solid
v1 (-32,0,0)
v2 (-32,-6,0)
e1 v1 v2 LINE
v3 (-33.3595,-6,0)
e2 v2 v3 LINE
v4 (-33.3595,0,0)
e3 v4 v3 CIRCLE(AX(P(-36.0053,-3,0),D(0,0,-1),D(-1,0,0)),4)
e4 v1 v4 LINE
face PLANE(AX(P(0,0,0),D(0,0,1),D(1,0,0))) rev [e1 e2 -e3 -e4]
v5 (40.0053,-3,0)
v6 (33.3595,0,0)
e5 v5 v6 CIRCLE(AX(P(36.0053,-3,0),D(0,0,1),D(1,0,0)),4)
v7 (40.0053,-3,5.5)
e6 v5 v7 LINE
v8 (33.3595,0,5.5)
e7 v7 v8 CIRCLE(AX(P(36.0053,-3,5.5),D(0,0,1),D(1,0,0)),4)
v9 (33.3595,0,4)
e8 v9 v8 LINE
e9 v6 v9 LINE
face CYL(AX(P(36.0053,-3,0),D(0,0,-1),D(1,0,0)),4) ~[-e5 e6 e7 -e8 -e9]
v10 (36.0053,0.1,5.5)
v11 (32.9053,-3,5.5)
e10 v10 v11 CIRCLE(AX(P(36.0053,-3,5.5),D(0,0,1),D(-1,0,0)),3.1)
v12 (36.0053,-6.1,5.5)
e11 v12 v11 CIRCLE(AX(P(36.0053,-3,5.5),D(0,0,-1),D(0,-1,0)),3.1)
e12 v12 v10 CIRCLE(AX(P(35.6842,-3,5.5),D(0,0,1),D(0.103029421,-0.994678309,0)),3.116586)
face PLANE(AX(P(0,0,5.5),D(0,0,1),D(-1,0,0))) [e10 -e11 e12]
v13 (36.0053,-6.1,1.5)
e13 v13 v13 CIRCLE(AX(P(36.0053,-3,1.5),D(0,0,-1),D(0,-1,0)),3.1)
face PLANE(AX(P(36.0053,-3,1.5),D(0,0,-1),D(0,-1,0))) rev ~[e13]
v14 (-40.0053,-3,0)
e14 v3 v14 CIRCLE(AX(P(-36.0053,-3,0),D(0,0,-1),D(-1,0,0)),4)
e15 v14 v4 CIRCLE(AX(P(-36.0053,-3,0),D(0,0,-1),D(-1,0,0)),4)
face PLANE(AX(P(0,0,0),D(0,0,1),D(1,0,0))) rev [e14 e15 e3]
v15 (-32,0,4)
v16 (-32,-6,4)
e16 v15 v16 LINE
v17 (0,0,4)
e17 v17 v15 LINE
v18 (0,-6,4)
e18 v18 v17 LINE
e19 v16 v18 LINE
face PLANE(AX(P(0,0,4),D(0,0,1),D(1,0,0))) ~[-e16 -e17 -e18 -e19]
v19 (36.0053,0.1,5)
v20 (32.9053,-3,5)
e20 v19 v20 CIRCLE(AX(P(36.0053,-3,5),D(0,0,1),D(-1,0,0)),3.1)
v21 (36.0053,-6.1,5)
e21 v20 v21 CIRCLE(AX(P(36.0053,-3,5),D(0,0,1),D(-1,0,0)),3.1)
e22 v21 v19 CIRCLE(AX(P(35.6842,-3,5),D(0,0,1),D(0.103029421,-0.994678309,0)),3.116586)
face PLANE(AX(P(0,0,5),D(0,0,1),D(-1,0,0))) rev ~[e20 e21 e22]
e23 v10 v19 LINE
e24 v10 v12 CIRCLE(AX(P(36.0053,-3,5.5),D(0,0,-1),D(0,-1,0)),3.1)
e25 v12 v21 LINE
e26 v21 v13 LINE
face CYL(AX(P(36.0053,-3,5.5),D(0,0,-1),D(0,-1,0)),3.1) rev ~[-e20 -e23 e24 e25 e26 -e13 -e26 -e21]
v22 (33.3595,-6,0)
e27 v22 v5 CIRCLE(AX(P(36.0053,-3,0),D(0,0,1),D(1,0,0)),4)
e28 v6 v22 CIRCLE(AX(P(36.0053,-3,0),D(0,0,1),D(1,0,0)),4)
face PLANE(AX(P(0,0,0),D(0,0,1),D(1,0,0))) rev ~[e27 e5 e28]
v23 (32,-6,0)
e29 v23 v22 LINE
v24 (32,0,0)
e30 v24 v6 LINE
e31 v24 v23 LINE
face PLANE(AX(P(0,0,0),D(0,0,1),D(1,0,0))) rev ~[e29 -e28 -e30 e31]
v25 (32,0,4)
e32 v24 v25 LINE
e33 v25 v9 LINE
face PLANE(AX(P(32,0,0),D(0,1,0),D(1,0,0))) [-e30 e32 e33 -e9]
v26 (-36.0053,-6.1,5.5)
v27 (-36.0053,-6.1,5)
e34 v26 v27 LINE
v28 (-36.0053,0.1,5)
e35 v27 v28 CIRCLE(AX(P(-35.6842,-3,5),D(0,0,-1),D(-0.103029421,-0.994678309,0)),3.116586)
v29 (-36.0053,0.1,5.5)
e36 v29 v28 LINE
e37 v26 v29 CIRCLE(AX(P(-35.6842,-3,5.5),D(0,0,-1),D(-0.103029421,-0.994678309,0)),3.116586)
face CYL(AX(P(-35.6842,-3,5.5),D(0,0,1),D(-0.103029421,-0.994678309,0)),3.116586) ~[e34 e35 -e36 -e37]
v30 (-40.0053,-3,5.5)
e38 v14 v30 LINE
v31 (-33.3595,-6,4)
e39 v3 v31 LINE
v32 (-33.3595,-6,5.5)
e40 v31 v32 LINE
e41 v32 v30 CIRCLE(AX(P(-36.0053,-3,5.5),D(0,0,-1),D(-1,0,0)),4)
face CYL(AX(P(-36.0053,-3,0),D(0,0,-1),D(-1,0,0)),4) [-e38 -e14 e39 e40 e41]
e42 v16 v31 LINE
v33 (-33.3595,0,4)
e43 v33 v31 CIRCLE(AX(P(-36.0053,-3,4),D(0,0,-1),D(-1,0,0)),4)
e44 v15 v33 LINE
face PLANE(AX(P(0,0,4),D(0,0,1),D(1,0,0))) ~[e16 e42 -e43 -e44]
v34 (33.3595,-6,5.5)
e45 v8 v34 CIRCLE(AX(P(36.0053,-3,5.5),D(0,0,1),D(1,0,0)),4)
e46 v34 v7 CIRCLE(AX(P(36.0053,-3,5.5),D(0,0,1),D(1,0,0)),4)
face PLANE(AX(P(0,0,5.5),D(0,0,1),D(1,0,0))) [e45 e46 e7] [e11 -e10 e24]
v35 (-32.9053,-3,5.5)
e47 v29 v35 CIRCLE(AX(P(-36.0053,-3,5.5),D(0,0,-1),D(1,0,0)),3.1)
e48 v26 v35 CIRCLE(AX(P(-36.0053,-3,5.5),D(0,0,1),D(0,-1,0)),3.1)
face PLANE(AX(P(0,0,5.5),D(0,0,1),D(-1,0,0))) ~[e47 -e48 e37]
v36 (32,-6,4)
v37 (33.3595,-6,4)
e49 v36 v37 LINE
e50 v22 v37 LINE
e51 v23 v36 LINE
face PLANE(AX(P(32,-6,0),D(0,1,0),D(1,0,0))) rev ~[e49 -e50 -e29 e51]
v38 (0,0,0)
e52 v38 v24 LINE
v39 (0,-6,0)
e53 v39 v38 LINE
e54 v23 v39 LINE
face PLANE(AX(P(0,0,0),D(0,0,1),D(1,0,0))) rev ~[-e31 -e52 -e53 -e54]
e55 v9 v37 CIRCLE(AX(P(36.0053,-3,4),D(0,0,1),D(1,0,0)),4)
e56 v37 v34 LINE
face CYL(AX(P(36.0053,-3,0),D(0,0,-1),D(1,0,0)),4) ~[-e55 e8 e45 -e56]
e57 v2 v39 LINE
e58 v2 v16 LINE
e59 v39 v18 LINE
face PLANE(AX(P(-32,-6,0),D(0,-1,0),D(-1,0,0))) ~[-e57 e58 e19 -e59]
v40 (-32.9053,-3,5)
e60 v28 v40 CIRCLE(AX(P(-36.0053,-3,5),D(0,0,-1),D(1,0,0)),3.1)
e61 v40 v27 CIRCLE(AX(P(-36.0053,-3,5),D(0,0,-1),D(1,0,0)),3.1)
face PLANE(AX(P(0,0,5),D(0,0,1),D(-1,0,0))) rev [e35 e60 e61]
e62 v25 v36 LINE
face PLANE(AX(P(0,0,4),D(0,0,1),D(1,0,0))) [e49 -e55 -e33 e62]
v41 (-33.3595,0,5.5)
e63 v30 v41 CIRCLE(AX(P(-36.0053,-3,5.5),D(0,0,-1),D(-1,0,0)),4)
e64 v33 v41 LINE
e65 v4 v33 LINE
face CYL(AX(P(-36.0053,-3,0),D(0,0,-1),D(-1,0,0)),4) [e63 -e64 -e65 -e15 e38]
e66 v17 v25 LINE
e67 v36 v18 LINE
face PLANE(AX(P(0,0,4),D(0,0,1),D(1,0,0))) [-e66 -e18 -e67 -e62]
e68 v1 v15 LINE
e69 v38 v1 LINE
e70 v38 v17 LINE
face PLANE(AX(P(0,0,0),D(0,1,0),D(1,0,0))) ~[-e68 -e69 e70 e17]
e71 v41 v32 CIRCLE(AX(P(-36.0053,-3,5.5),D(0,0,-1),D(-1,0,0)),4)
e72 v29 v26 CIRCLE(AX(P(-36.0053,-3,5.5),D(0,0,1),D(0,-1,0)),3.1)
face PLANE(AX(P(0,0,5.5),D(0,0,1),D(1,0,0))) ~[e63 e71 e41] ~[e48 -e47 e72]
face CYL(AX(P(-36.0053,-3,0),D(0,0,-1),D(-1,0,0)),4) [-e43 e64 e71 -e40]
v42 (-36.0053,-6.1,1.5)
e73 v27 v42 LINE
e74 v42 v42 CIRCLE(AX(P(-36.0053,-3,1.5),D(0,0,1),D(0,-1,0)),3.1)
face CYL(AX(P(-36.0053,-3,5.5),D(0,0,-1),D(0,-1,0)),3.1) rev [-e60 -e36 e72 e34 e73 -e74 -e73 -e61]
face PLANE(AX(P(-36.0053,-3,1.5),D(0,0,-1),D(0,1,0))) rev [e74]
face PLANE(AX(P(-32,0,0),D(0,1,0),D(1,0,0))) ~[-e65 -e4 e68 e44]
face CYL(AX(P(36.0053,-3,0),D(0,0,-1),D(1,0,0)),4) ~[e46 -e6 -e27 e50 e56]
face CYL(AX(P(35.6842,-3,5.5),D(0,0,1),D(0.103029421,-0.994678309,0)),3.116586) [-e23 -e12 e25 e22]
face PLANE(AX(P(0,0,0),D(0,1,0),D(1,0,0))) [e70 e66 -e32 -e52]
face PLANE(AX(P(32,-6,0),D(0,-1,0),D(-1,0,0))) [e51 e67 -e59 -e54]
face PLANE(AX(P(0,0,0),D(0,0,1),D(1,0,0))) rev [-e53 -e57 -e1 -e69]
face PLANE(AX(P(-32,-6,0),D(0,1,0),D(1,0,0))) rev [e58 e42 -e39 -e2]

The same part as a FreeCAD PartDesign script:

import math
import FreeCAD as App
import Part
import Sketcher

doc = App.newDocument("Part")
body = doc.addObject("PartDesign::Body", "Body")

sketch1 = body.newObject("Sketcher::SketchObject", "Sketch")
sketch1.AttachmentSupport = (doc.getObject("XY_Plane"), [""])
sketch1.MapMode = "FlatFace"
sketch1.addGeometry([
    Part.LineSegment(App.Vector(0, 0, 0), App.Vector(0, -6, 0)),
    Part.LineSegment(App.Vector(0, -6, 0), App.Vector(33.4, -6, 0)),
    Part.ArcOfCircle(Part.Circle(App.Vector(36, -3, 0), App.Vector(0, 0, 1), 4), math.radians(131), math.radians(229)),
    Part.LineSegment(App.Vector(33.4, 0, 0), App.Vector(0, 0, 0)),
], False)
sketch1.addConstraint([
    Sketcher.Constraint("Coincident", 0, 2, 1, 1),
    Sketcher.Constraint("Coincident", 1, 2, 2, 2),
    Sketcher.Constraint("Coincident", 2, 1, 3, 1),
    Sketcher.Constraint("Coincident", 3, 2, 0, 1),
    Sketcher.Constraint("Vertical", 0),
    Sketcher.Constraint("Horizontal", 1),
    Sketcher.Constraint("Horizontal", 3),
    Sketcher.Constraint("Coincident", 3, 2, -1, 1),
    Sketcher.Constraint("Vertical", 1, 2, 2, 1),
    Sketcher.Constraint("Radius", 2, 4.0),
    Sketcher.Constraint("DistanceY", 0, 2, 0, 1, 6.0),
    Sketcher.Constraint("DistanceX", 1, 1, 1, 2, 33.3595),
])
pad1 = body.newObject("PartDesign::Pad", "Pad")
pad1.Profile = sketch1
pad1.Length = 4

sketch2 = body.newObject("Sketcher::SketchObject", "Sketch001")
sketch2.AttachmentSupport = (doc.getObject("XY_Plane"), [""])
sketch2.MapMode = "FlatFace"
sketch2.addGeometry(Part.Circle(App.Vector(36, -3, 0), App.Vector(0, 0, 1), 4), False)
sketch2.addConstraint([
    Sketcher.Constraint("Diameter", 0, 8.0),
    Sketcher.Constraint("DistanceY", 0, 3, -1, 1, 3.0),
    Sketcher.Constraint("DistanceX", -1, 1, 0, 3, 36.0053),
])
pad2 = body.newObject("PartDesign::Pad", "Pad001")
pad2.Profile = sketch2
pad2.Length = 5.5

sketch3 = body.newObject("Sketcher::SketchObject", "Sketch002")
sketch3.AttachmentSupport = (doc.getObject("XY_Plane"), [""])
sketch3.MapMode = "FlatFace"
sketch3.AttachmentOffset = App.Placement(App.Vector(0, 0, 5.5), App.Rotation())
sketch3.addGeometry(Part.Circle(App.Vector(36, -3, 0), App.Vector(0, 0, 1), 3.1), False)
sketch3.addConstraint([
    Sketcher.Constraint("Diameter", 0, 6.2),
    Sketcher.Constraint("DistanceY", 0, 3, -1, 1, 3.0),
    Sketcher.Constraint("DistanceX", -1, 1, 0, 3, 36.0053),
])
doc.recompute()
hole = body.newObject("PartDesign::Hole", "Hole")
hole.Profile = sketch3
hole.ThreadType = "None"
hole.Diameter = 6.2
hole.DepthType = "Dimension"
hole.Depth = 4
hole.DrillPoint = "Flat"

sketch4 = body.newObject("Sketcher::SketchObject", "Sketch003")
sketch4.AttachmentSupport = (doc.getObject("XY_Plane"), [""])
sketch4.MapMode = "FlatFace"
sketch4.AttachmentOffset = App.Placement(App.Vector(0, 0, 5.5), App.Rotation())
sketch4.addGeometry([
    Part.ArcOfCircle(Part.Circle(App.Vector(36, -3, 0), App.Vector(0, 0, 1), 3.1), math.radians(90), math.radians(270)),
    Part.ArcOfCircle(Part.Circle(App.Vector(35.7, -3, 0), App.Vector(0, 0, 1), 3.1), math.radians(-84), math.radians(84)),
], False)
sketch4.addConstraint([
    Sketcher.Constraint("Coincident", 0, 1, 1, 2),
    Sketcher.Constraint("Coincident", 1, 1, 0, 2),
    Sketcher.Constraint("Horizontal", 0, 3, 1, 3),
    Sketcher.Constraint("Radius", 0, 3.1),
    Sketcher.Constraint("DistanceY", 0, 3, -1, 1, 3.0),
    Sketcher.Constraint("Radius", 1, 3.1166),
    Sketcher.Constraint("DistanceX", 1, 3, 0, 3, 0.321),
    Sketcher.Constraint("DistanceX", -1, 1, 0, 3, 36.0053),
])
pad3 = body.newObject("PartDesign::Pad", "Pad002")
pad3.Profile = sketch4
pad3.Length = 0.5
pad3.Reversed = True
doc.recompute()

mirrored = body.newObject("PartDesign::Mirrored", "Mirrored")
mirrored.TransformMode = "Transform body"
mirrored.MirrorPlane = (doc.getObject("YZ_Plane"), [""])
body.Tip = mirrored

doc.recompute()
